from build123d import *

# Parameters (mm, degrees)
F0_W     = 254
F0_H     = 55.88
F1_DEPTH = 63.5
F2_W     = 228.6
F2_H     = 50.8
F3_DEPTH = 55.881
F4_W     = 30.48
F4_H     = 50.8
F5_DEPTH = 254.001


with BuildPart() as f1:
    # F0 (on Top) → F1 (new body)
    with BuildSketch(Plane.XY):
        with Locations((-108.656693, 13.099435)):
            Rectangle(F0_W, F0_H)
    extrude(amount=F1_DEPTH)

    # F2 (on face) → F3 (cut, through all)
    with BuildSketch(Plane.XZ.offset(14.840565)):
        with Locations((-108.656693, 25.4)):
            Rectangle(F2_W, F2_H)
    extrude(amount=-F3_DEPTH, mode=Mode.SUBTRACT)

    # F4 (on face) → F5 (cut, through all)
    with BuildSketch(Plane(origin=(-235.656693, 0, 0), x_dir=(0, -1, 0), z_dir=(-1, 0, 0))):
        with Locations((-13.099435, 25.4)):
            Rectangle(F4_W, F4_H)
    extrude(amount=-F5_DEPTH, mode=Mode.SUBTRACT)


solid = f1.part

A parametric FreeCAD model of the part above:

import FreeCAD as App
import Part
import Sketcher

V = App.Vector
Q = App.Units.Quantity


def add_polygon(sketch, points):
    """Adds a closed chain of lines whose ends are joined by coincident constraints."""
    first, n = sketch.GeometryCount, len(points)
    for a, b in zip(points, points[1:] + points[:1]):
        sketch.addGeometry(Part.LineSegment(App.Vector(*a, 0), App.Vector(*b, 0)), False)
    for i in range(n):
        sketch.addConstraint(Sketcher.Constraint("Coincident", first + i, 2, first + (i + 1) % n, 1))

doc = App.newDocument("Part")
body = doc.addObject("PartDesign::Body", "Body")

sketch1 = body.newObject("Sketcher::SketchObject", "Sketch")
sketch1.AttachmentSupport = (doc.getObject("XY_Plane"), [""])
sketch1.MapMode = "FlatFace"
add_polygon(sketch1, [(-236, 41), (-236, -15), (18, -15), (18, 41)])
sketch1.addConstraint(Sketcher.Constraint("Vertical", 0))
sketch1.addConstraint(Sketcher.Constraint("Horizontal", 1))
sketch1.addConstraint(Sketcher.Constraint("Vertical", 2))
sketch1.addConstraint(Sketcher.Constraint("Horizontal", 3))
sketch1.addConstraint(Sketcher.Constraint("DistanceX", 1, 1, 1, 2, Q("10 in")))
sketch1.addConstraint(Sketcher.Constraint("DistanceY", 0, 2, 0, 1, Q("2.2 in")))
sketch1.addConstraint(Sketcher.Constraint("DistanceX", 0, 2, -1, 1, 235.656693))
sketch1.addConstraint(Sketcher.Constraint("DistanceY", 0, 2, -1, 1, 14.840565))
pad1 = body.newObject("PartDesign::Pad", "Pad")
pad1.Profile = sketch1
pad1.Length = Q("2.5 in")

sketch2 = body.newObject("Sketcher::SketchObject", "Sketch001")
sketch2.AttachmentSupport = (doc.getObject("XZ_Plane"), [""])
sketch2.MapMode = "FlatFace"
sketch2.AttachmentOffset = App.Placement(V(0, 0, 14.840565), App.Rotation())
add_polygon(sketch2, [(-223, 51), (-223, 0), (6, 0), (6, 51)])
sketch2.addConstraint(Sketcher.Constraint("Vertical", 0))
sketch2.addConstraint(Sketcher.Constraint("Horizontal", 1))
sketch2.addConstraint(Sketcher.Constraint("Vertical", 2))
sketch2.addConstraint(Sketcher.Constraint("Horizontal", 3))
sketch2.addConstraint(Sketcher.Constraint("PointOnObject", 0, 2, -1))
sketch2.addConstraint(Sketcher.Constraint("DistanceX", 1, 1, 1, 2, Q("9 in")))
sketch2.addConstraint(Sketcher.Constraint("DistanceY", 0, 2, 0, 1, Q("2 in")))
sketch2.addConstraint(Sketcher.Constraint("DistanceX", 0, 2, -1, 1, 222.956693))
pocket1 = body.newObject("PartDesign::Pocket", "Pocket")
pocket1.Profile = sketch2
pocket1.Type = "ThroughAll"

sketch3 = body.newObject("Sketcher::SketchObject", "Sketch002")
sketch3.AttachmentSupport = (doc.getObject("YZ_Plane"), [""])
sketch3.MapMode = "FlatFace"
sketch3.AttachmentOffset = App.Placement(V(0, 0, -235.656693), App.Rotation())
add_polygon(sketch3, [(28, 51), (28, 0), (-2, 0), (-2, 51)])
sketch3.addConstraint(Sketcher.Constraint("Vertical", 0))
sketch3.addConstraint(Sketcher.Constraint("Horizontal", 1))
sketch3.addConstraint(Sketcher.Constraint("Vertical", 2))
sketch3.addConstraint(Sketcher.Constraint("Horizontal", 3))
sketch3.addConstraint(Sketcher.Constraint("PointOnObject", 0, 2, -1))
sketch3.addConstraint(Sketcher.Constraint("DistanceY", 0, 2, 0, 1, Q("2 in")))
sketch3.addConstraint(Sketcher.Constraint("DistanceX", 1, 2, 1, 1, Q("1.2 in")))
sketch3.addConstraint(Sketcher.Constraint("DistanceX", -1, 1, 0, 2, 28.339435))
pocket2 = body.newObject("PartDesign::Pocket", "Pocket001")
pocket2.Profile = sketch3
pocket2.Type = "ThroughAll"
pocket2.Reversed = True

doc.recompute()
